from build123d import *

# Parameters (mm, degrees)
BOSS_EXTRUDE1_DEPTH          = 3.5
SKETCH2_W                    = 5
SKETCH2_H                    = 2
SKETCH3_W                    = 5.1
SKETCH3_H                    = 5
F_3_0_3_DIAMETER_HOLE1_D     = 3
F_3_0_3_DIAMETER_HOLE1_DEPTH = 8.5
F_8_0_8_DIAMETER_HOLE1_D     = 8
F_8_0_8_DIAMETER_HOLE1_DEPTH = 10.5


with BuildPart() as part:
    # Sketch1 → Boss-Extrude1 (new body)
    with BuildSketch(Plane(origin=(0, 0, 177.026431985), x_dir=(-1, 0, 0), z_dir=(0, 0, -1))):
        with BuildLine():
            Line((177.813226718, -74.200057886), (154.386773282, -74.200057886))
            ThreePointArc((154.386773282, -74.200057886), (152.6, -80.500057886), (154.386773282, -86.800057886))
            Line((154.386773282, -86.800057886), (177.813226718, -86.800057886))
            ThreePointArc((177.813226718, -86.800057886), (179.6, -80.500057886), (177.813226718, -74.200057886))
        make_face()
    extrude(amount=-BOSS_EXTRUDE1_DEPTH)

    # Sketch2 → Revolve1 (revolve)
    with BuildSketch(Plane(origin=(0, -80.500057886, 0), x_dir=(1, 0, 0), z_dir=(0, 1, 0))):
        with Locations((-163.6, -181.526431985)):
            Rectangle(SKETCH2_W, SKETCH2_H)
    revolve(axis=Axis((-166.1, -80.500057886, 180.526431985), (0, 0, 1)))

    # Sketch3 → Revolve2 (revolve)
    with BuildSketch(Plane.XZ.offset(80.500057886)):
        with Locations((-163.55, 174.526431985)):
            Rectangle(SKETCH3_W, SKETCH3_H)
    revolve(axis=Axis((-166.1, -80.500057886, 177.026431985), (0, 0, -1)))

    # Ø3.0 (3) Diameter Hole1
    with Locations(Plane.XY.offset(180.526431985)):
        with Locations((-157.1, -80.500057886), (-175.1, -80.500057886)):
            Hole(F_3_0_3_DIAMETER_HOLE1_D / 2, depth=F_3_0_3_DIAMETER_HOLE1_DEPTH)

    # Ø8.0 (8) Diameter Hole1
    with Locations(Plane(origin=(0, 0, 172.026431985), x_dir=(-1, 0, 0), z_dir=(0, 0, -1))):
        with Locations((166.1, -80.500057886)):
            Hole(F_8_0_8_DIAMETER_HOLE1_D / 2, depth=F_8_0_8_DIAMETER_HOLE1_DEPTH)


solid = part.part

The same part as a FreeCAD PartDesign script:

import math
import FreeCAD as App
import Part
import Sketcher

V = App.Vector

doc = App.newDocument("Part")
params = doc.addObject("Spreadsheet::Sheet", "Params")
for row, (alias, value) in enumerate([
    ("sketch1_radius", "12 mm"),
    ("pad1_length", "3.5 mm"),
    ("sketch2_width", "5 mm"),
    ("sketch2_height", "2 mm"),
    ("revolution_angle", "360 deg"),
    ("sketch3_height", "5 mm"),
    ("sketch3_width", "5.1 mm"),
    ("revolution2_angle", "360 deg"),
    ("sketch4_diameter", "3 mm"),
    ("hole_diameter", "3 mm"),
    ("hole_depth", "8.5 mm"),
    ("sketch5_diameter", "8 mm"),
    ("hole2_diameter", "8 mm"),
    ("hole2_depth", "10.5 mm"),
], start=1):
    params.set(f"A{row}", alias)
    params.set(f"B{row}", "=" + value)
    params.setAlias(f"B{row}", alias)

body = doc.addObject("PartDesign::Body", "Body")

# Sketch on XY plane
sketch1 = body.newObject("Sketcher::SketchObject", "Sketch")
sketch1.AttachmentSupport = (doc.getObject("XY_Plane"), [""])
sketch1.MapMode = "FlatFace"
sketch1.AttachmentOffset = App.Placement(V(0, 0, 177.026432), App.Rotation())
sketch1.addGeometry([
    Part.LineSegment(V(-178, -74, 0), V(-154, -74, 0)),
    Part.ArcOfCircle(Part.Circle(V(-165, -81, 0), V(0, 0, 1), 12), math.radians(-32), math.radians(32)),
    Part.LineSegment(V(-154, -87, 0), V(-178, -87, 0)),
    Part.ArcOfCircle(Part.Circle(V(-168, -81, 0), V(0, 0, 1), 12), math.radians(148), math.radians(212)),
], False)
sketch1.addConstraint([
    Sketcher.Constraint("Coincident", 0, 2, 1, 2),
    Sketcher.Constraint("Coincident", 1, 1, 2, 1),
    Sketcher.Constraint("Coincident", 2, 2, 3, 2),
    Sketcher.Constraint("Coincident", 3, 1, 0, 1),
    Sketcher.Constraint("Horizontal", 0),
    Sketcher.Constraint("Horizontal", 2),
    Sketcher.Constraint("Equal", 1, 3),
    Sketcher.Constraint("Horizontal", 1, 3, 3, 3),
    Sketcher.Constraint("Vertical", 0, 2, 1, 1),
    Sketcher.Constraint("Radius", 1, 12.0),
    Sketcher.Constraint("DistanceX", 3, 3, 1, 3, 3.0),
    Sketcher.Constraint("DistanceX", 1, 3, -1, 1, 164.6),
    Sketcher.Constraint("DistanceY", 1, 3, 0, 2, 6.3),
    Sketcher.Constraint("DistanceY", 1, 3, -1, 1, 80.500058),
])
sketch1.setExpression("Constraints[9]", "Params.sketch1_radius")
pad1 = body.newObject("PartDesign::Pad", "Pad")
pad1.Profile = sketch1
pad1.setExpression("Length", "Params.pad1_length")

# Sketch on XZ plane
sketch2 = body.newObject("Sketcher::SketchObject", "Sketch001")
sketch2.AttachmentSupport = (doc.getObject("XZ_Plane"), [""])
sketch2.MapMode = "FlatFace"
sketch2.AttachmentOffset = App.Placement(V(0, 0, 80.500058), App.Rotation())
sketch2.addGeometry([
    Part.LineSegment(V(-166.1, 180.5, 0), V(-166.1, 182.5, 0)),
    Part.LineSegment(V(-166.1, 182.5, 0), V(-161.1, 182.5, 0)),
    Part.LineSegment(V(-161.1, 182.5, 0), V(-161.1, 180.5, 0)),
    Part.LineSegment(V(-161.1, 180.5, 0), V(-166.1, 180.5, 0)),
], False)
sketch2.addGeometry(Part.LineSegment(V(-166.1, 180.5, 0), V(-166.1, 182.5, 0)), True)  # axis
sketch2.addConstraint([
    Sketcher.Constraint("Coincident", 0, 2, 1, 1),
    Sketcher.Constraint("Coincident", 1, 2, 2, 1),
    Sketcher.Constraint("Coincident", 2, 2, 3, 1),
    Sketcher.Constraint("Coincident", 3, 2, 0, 1),
    Sketcher.Constraint("Vertical", 0),
    Sketcher.Constraint("Horizontal", 1),
    Sketcher.Constraint("Vertical", 2),
    Sketcher.Constraint("Horizontal", 3),
    Sketcher.Constraint("Vertical", 4),
    Sketcher.Constraint("Coincident", 4, 1, 3, 2),
    Sketcher.Constraint("Horizontal", 1, 2, 4, 2),
    Sketcher.Constraint("DistanceX", 1, 1, 1, 2, 5.0),
    Sketcher.Constraint("DistanceY", 0, 1, 0, 2, 2.0),
    Sketcher.Constraint("DistanceX", 0, 2, -1, 1, 166.1),
    Sketcher.Constraint("DistanceY", -1, 1, 0, 2, 182.526432),
])
sketch2.setExpression("Constraints[11]", "Params.sketch2_width")
sketch2.setExpression("Constraints[12]", "Params.sketch2_height")
revolution = body.newObject("PartDesign::Revolution", "Revolution")
revolution.Profile = sketch2
revolution.ReferenceAxis = (sketch2, ["Axis0"])
revolution.setExpression("Angle", "Params.revolution_angle")

# Sketch on XZ plane
sketch3 = body.newObject("Sketcher::SketchObject", "Sketch002")
sketch3.AttachmentSupport = (doc.getObject("XZ_Plane"), [""])
sketch3.MapMode = "FlatFace"
sketch3.AttachmentOffset = App.Placement(V(0, 0, 80.500058), App.Rotation())
sketch3.addGeometry([
    Part.LineSegment(V(-166, 177, 0), V(-166, 172, 0)),
    Part.LineSegment(V(-166, 172, 0), V(-161, 172, 0)),
    Part.LineSegment(V(-161, 172, 0), V(-161, 177, 0)),
    Part.LineSegment(V(-161, 177, 0), V(-166, 177, 0)),
], False)
sketch3.addGeometry(Part.LineSegment(V(-166, 177, 0), V(-166, 172, 0)), True)  # axis
sketch3.addConstraint([
    Sketcher.Constraint("Coincident", 0, 2, 1, 1),
    Sketcher.Constraint("Coincident", 1, 2, 2, 1),
    Sketcher.Constraint("Coincident", 2, 2, 3, 1),
    Sketcher.Constraint("Coincident", 3, 2, 0, 1),
    Sketcher.Constraint("Vertical", 0),
    Sketcher.Constraint("Horizontal", 1),
    Sketcher.Constraint("Vertical", 2),
    Sketcher.Constraint("Horizontal", 3),
    Sketcher.Constraint("Vertical", 4),
    Sketcher.Constraint("Coincident", 4, 1, 3, 2),
    Sketcher.Constraint("Horizontal", 1, 2, 4, 2),
    Sketcher.Constraint("DistanceY", 0, 2, 0, 1, 5.0),
    Sketcher.Constraint("DistanceX", 1, 1, 1, 2, 5.1),
    Sketcher.Constraint("DistanceX", 1, 2, -1, 1, 161.0),
    Sketcher.Constraint("DistanceY", -1, 1, 0, 2, 172.026432),
])
sketch3.setExpression("Constraints[11]", "Params.sketch3_height")
sketch3.setExpression("Constraints[12]", "Params.sketch3_width")
revolution2 = body.newObject("PartDesign::Revolution", "Revolution001")
revolution2.Profile = sketch3
revolution2.ReferenceAxis = (sketch3, ["Axis0"])
revolution2.setExpression("Angle", "Params.revolution2_angle")

# Sketch on XY plane
sketch4 = body.newObject("Sketcher::SketchObject", "Sketch003")
sketch4.AttachmentSupport = (doc.getObject("XY_Plane"), [""])
sketch4.MapMode = "FlatFace"
sketch4.AttachmentOffset = App.Placement(V(0, 0, 180.526432), App.Rotation())
sketch4.addGeometry([
    Part.Circle(V(-157.1, -80.5, 0), V(0, 0, 1), 1.5),
    Part.Circle(V(-175.1, -80.5, 0), V(0, 0, 1), 1.5),
], False)
sketch4.addConstraint([
    Sketcher.Constraint("Equal", 0, 1),
    Sketcher.Constraint("Horizontal", 0, 3, 1, 3),
    Sketcher.Constraint("Diameter", 0, 3.0),
    Sketcher.Constraint("DistanceX", 1, 3, 0, 3, 18.0),
    Sketcher.Constraint("DistanceX", 0, 3, -1, 1, 157.1),
    Sketcher.Constraint("DistanceY", 0, 3, -1, 1, 80.500058),
])
sketch4.setExpression("Constraints[2]", "Params.sketch4_diameter")
doc.recompute()
hole = body.newObject("PartDesign::Hole", "Hole")
hole.Profile = sketch4
hole.ThreadType = "None"
hole.setExpression("Diameter", "Params.hole_diameter")
hole.DepthType = "Dimension"
hole.setExpression("Depth", "Params.hole_depth")
hole.DrillPoint = "Flat"

# Sketch on XY plane
sketch5 = body.newObject("Sketcher::SketchObject", "Sketch004")
sketch5.AttachmentSupport = (doc.getObject("XY_Plane"), [""])
sketch5.MapMode = "FlatFace"
sketch5.AttachmentOffset = App.Placement(V(0, 0, 172.026432), App.Rotation())
sketch5.addGeometry(Part.Circle(V(-166.1, -80.5, 0), V(0, 0, 1), 4), False)
sketch5.addConstraint([
    Sketcher.Constraint("Diameter", 0, 8.0),
    Sketcher.Constraint("DistanceX", 0, 3, -1, 1, 166.1),
    Sketcher.Constraint("DistanceY", 0, 3, -1, 1, 80.500058),
])
sketch5.setExpression("Constraints[0]", "Params.sketch5_diameter")
doc.recompute()
hole2 = body.newObject("PartDesign::Hole", "Hole001")
hole2.Profile = sketch5
hole2.ThreadType = "None"
hole2.setExpression("Diameter", "Params.hole2_diameter")
hole2.DepthType = "Dimension"
hole2.setExpression("Depth", "Params.hole2_depth")
hole2.DrillPoint = "Flat"
hole2.Reversed = True

doc.recompute()
